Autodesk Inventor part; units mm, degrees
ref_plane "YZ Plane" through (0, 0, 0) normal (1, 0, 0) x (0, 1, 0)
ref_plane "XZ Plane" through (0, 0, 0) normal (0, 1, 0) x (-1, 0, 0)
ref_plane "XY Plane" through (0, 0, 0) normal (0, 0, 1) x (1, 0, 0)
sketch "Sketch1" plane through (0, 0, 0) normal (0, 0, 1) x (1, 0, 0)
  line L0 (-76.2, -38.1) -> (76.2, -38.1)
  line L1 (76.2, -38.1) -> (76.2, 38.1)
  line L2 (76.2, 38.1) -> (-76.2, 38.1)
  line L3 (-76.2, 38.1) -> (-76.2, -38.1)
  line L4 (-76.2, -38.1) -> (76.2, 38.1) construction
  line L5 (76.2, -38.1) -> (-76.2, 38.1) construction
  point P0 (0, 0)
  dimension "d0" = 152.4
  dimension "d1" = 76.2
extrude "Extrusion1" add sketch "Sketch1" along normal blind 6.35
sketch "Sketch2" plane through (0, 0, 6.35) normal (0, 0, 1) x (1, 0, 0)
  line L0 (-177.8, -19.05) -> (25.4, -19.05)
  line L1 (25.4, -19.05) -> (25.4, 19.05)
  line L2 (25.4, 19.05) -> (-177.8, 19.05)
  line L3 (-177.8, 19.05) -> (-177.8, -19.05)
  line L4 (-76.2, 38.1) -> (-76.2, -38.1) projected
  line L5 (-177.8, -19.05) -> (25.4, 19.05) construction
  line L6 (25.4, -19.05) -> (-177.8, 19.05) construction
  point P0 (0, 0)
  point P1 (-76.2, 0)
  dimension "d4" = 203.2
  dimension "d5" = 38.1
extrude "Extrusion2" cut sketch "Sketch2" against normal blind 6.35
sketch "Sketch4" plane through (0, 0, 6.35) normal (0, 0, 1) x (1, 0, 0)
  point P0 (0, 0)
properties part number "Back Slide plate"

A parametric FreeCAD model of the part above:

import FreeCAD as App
import Part
import Sketcher
Q = App.Units.Quantity


def add_polygon(sketch, points):
    """Adds a closed chain of lines whose ends are joined by coincident constraints."""
    first, n = sketch.GeometryCount, len(points)
    for a, b in zip(points, points[1:] + points[:1]):
        sketch.addGeometry(Part.LineSegment(App.Vector(*a, 0), App.Vector(*b, 0)), False)
    for i in range(n):
        sketch.addConstraint(Sketcher.Constraint("Coincident", first + i, 2, first + (i + 1) % n, 1))

doc = App.newDocument("Part")
body = doc.addObject("PartDesign::Body", "Body")

sketch1 = body.newObject("Sketcher::SketchObject", "Sketch")
sketch1.AttachmentSupport = (doc.getObject("XY_Plane"), [""])
sketch1.MapMode = "FlatFace"
add_polygon(sketch1, [(-76, 38), (-76, -38), (76, -38), (76, 38)])
sketch1.addConstraint([
    Sketcher.Constraint("Vertical", 0),
    Sketcher.Constraint("Horizontal", 1),
    Sketcher.Constraint("Vertical", 2),
    Sketcher.Constraint("Horizontal", 3),
    Sketcher.Constraint("Symmetric", 0, 2, 2, 2, -1, 1),
    Sketcher.Constraint("DistanceX", 1, 1, 1, 2, Q("6 in")),
    Sketcher.Constraint("DistanceY", 0, 2, 0, 1, Q("3 in")),
])
pad1 = body.newObject("PartDesign::Pad", "Pad")
pad1.Profile = sketch1
pad1.Length = Q("0.25 in")

sketch2 = body.newObject("Sketcher::SketchObject", "Sketch001")
sketch2.AttachmentSupport = (doc.getObject("XY_Plane"), [""])
sketch2.MapMode = "FlatFace"
sketch2.AttachmentOffset = App.Placement(App.Vector(0, 0, 0.25 * 25.4), App.Rotation())
add_polygon(sketch2, [(-178, 19), (-178, -19), (25, -19), (25, 19)])
sketch2.addConstraint([
    Sketcher.Constraint("Vertical", 0),
    Sketcher.Constraint("Horizontal", 1),
    Sketcher.Constraint("Vertical", 2),
    Sketcher.Constraint("Horizontal", 3),
    Sketcher.Constraint("DistanceX", 1, 1, 1, 2, Q("8 in")),
    Sketcher.Constraint("DistanceY", 0, 2, 0, 1, Q("1.5 in")),
    Sketcher.Constraint("DistanceX", 0, 2, -1, 1, Q("7 in")),
    Sketcher.Constraint("DistanceY", 0, 2, -1, 1, Q("0.75 in")),
])
pocket1 = body.newObject("PartDesign::Pocket", "Pocket")
pocket1.Profile = sketch2
pocket1.Length = Q("0.25 in")

doc.recompute()
